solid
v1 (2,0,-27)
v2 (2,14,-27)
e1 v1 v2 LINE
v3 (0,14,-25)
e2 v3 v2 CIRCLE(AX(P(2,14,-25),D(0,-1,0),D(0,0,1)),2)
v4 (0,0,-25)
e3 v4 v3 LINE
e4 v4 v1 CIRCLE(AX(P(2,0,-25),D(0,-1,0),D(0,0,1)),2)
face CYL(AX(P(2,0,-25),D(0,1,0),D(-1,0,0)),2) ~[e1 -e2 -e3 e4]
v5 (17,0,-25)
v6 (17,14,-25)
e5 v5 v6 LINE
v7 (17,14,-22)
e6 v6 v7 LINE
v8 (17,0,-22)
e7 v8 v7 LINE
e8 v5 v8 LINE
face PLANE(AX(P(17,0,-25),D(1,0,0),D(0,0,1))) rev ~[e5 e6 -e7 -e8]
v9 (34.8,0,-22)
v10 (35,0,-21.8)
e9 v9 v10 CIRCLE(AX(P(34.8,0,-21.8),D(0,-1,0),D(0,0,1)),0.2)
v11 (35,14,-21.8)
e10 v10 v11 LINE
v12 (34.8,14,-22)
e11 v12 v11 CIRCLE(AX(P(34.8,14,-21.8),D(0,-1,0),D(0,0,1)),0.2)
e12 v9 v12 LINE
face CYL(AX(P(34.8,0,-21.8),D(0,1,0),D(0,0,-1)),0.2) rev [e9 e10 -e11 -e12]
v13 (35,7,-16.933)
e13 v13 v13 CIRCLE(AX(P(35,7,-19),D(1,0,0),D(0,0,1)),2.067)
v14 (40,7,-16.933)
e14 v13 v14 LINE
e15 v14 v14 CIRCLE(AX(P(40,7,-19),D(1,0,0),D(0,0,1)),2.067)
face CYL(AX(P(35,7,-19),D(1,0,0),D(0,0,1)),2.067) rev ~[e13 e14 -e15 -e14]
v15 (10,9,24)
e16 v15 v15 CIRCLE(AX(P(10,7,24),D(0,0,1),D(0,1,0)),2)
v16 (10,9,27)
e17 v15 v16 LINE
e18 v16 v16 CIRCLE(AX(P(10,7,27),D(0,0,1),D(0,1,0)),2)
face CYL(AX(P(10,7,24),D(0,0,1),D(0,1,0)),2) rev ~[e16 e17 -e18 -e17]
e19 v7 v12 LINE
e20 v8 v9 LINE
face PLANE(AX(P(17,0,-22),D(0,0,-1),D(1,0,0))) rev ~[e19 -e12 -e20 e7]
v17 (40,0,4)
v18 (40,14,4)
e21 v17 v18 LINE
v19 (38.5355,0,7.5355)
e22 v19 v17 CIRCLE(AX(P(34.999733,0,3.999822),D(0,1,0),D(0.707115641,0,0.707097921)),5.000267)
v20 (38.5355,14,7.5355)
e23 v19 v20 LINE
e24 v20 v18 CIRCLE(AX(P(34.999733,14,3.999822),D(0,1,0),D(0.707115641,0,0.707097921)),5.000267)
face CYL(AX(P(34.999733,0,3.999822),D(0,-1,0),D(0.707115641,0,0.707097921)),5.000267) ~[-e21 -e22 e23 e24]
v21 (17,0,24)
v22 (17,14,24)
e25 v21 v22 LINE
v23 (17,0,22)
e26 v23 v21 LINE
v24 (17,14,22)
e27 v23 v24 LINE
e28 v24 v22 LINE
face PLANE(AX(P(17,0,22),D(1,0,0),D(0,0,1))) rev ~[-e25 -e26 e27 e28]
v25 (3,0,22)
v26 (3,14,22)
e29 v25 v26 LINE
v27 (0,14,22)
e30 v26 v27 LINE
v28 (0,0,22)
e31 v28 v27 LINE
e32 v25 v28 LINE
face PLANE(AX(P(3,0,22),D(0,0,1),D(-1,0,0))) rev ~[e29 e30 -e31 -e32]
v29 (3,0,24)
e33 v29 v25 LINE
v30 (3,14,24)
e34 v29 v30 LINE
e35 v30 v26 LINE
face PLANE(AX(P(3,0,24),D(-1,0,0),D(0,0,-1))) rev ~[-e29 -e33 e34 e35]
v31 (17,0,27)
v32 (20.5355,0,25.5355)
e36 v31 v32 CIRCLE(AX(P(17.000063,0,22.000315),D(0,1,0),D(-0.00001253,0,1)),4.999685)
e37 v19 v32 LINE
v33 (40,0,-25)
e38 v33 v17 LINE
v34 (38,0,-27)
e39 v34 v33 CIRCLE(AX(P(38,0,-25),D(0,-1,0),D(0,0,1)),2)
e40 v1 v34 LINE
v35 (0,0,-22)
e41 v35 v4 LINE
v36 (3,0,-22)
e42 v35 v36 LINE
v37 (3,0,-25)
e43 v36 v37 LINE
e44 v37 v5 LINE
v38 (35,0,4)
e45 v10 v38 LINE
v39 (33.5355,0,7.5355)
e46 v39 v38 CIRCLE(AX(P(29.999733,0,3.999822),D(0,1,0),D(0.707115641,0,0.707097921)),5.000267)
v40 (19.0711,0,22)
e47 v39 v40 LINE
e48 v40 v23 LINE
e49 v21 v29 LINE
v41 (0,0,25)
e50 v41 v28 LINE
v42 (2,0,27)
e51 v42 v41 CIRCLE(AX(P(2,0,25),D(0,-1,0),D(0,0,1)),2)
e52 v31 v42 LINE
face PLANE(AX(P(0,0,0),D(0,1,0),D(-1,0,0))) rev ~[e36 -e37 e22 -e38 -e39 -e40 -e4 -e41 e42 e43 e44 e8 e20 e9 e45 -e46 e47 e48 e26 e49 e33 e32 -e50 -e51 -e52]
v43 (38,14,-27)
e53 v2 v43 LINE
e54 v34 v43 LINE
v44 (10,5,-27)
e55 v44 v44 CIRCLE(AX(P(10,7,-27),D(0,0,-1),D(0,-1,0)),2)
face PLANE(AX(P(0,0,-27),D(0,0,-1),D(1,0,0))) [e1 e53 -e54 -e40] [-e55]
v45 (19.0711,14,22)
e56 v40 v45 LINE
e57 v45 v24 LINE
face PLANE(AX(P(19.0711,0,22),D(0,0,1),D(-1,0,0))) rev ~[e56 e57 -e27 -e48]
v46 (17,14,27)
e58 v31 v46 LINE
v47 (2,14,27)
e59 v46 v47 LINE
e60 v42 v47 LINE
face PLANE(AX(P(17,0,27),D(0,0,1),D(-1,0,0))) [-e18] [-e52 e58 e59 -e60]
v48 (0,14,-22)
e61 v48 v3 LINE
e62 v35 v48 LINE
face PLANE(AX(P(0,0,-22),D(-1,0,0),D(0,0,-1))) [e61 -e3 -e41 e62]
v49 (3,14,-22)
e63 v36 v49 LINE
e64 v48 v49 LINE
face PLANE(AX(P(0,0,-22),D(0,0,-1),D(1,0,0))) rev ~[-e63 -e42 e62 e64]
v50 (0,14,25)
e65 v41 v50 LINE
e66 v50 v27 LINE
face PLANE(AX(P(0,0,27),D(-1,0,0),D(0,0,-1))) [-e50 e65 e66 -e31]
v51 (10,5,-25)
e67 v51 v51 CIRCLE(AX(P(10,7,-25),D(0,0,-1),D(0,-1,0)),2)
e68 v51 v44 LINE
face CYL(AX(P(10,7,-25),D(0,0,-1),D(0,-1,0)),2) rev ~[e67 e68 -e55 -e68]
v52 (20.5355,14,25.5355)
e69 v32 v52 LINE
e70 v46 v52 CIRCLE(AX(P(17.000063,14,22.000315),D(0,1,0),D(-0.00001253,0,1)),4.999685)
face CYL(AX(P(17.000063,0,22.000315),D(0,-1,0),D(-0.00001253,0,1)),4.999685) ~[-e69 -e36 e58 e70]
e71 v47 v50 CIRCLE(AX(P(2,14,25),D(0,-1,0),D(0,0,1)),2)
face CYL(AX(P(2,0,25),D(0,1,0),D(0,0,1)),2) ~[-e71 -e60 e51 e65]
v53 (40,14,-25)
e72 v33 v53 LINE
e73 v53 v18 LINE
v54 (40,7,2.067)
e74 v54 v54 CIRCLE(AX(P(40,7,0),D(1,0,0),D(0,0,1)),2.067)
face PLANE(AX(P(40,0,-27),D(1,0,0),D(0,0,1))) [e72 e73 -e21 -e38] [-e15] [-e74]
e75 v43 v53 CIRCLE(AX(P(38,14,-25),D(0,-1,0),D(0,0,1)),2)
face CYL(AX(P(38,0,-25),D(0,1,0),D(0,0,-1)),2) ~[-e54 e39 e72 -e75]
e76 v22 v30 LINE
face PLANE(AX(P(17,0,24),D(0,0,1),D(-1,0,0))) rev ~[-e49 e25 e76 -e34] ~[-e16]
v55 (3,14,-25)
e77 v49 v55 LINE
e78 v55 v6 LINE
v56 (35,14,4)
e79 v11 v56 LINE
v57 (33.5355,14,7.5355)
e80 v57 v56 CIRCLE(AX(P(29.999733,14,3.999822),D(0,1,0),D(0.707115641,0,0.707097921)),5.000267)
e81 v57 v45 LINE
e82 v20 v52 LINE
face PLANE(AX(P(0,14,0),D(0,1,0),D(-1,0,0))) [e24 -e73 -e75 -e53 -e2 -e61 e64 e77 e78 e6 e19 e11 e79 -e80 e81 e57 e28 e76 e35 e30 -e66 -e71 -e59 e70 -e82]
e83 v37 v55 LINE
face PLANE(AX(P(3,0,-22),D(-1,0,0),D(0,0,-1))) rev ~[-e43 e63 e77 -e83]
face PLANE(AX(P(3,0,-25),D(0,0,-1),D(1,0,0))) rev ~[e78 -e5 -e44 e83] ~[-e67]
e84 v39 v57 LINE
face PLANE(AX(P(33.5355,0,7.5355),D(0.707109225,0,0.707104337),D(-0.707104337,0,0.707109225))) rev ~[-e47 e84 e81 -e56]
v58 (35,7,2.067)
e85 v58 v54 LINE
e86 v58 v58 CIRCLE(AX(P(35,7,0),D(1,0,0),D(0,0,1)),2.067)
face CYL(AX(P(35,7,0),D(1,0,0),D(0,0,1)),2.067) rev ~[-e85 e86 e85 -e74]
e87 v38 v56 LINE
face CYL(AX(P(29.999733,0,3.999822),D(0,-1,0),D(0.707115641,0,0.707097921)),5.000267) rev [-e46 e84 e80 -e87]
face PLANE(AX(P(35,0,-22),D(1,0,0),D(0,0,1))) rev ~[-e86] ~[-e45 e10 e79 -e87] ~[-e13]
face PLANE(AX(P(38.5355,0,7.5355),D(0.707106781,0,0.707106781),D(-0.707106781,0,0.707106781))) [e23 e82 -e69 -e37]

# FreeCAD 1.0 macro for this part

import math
import FreeCAD as App
import Part
import Sketcher

V = App.Vector
Q = App.Units.Quantity


def edges_at(feature, points):
    """Names of the edges that pass closest to the given points."""
    edges = feature.Shape.Edges
    near = lambda p: min(range(len(edges)), key=lambda i: edges[i].distToShape(Part.Vertex(*p))[0])
    return sorted({f"Edge{near(p) + 1}" for p in points})

doc = App.newDocument("Part")
body = doc.addObject("PartDesign::Body", "Body")

sketch1 = body.newObject("Sketcher::SketchObject", "Sketch")
sketch1.AttachmentSupport = (doc.getObject("XZ_Plane"), [""])
sketch1.MapMode = "FlatFace"
sketch1.addGeometry(Part.LineSegment(V(0, -27, 0), V(0, -22, 0)), False)
sketch1.addGeometry(Part.LineSegment(V(0, -22, 0), V(3, -22, 0)), False)
sketch1.addGeometry(Part.LineSegment(V(3, -22, 0), V(3, -25, 0)), False)
sketch1.addGeometry(Part.LineSegment(V(3, -25, 0), V(17, -25, 0)), False)
sketch1.addGeometry(Part.LineSegment(V(17, -25, 0), V(17, -22, 0)), False)
sketch1.addGeometry(Part.LineSegment(V(17, -22, 0), V(35, -22, 0)), False)
sketch1.addGeometry(Part.LineSegment(V(35, -22, 0), V(35, 4, 0)), False)
sketch1.addGeometry(Part.ArcOfCircle(Part.Circle(V(30, 4, 0), V(0, 0, 1), 5), math.radians(0), math.radians(45)), False)
sketch1.addGeometry(Part.LineSegment(V(33.5, 7.5, 0), V(19.1, 22, 0)), False)
sketch1.addGeometry(Part.LineSegment(V(19.1, 22, 0), V(17, 22, 0)), False)
sketch1.addGeometry(Part.LineSegment(V(17, 22, 0), V(17, 24, 0)), False)
sketch1.addGeometry(Part.LineSegment(V(17, 24, 0), V(3, 24, 0)), False)
sketch1.addGeometry(Part.LineSegment(V(3, 24, 0), V(3, 22, 0)), False)
sketch1.addGeometry(Part.LineSegment(V(3, 22, 0), V(0, 22, 0)), False)
sketch1.addGeometry(Part.LineSegment(V(0, 22, 0), V(0, 27, 0)), False)
sketch1.addGeometry(Part.LineSegment(V(0, 27, 0), V(17, 27, 0)), False)
sketch1.addGeometry(Part.ArcOfCircle(Part.Circle(V(17, 22, 0), V(0, 0, 1), 5), math.radians(45), math.radians(90)), False)
sketch1.addGeometry(Part.LineSegment(V(20.5, 25.5, 0), V(38.5, 7.5, 0)), False)
sketch1.addGeometry(Part.ArcOfCircle(Part.Circle(V(35, 4, 0), V(0, 0, 1), 5), math.radians(0), math.radians(45)), False)
sketch1.addGeometry(Part.LineSegment(V(40, 4, 0), V(40, -27, 0)), False)
sketch1.addGeometry(Part.LineSegment(V(40, -27, 0), V(0, -27, 0)), False)
sketch1.addConstraint(Sketcher.Constraint("Coincident", 0, 2, 1, 1))
sketch1.addConstraint(Sketcher.Constraint("Coincident", 1, 2, 2, 1))
sketch1.addConstraint(Sketcher.Constraint("Coincident", 2, 2, 3, 1))
sketch1.addConstraint(Sketcher.Constraint("Coincident", 3, 2, 4, 1))
sketch1.addConstraint(Sketcher.Constraint("Coincident", 4, 2, 5, 1))
sketch1.addConstraint(Sketcher.Constraint("Coincident", 5, 2, 6, 1))
sketch1.addConstraint(Sketcher.Constraint("Tangent", 6, 2, 7, 1))
sketch1.addConstraint(Sketcher.Constraint("Tangent", 7, 2, 8, 1))
sketch1.addConstraint(Sketcher.Constraint("Coincident", 8, 2, 9, 1))
sketch1.addConstraint(Sketcher.Constraint("Coincident", 9, 2, 10, 1))
sketch1.addConstraint(Sketcher.Constraint("Coincident", 10, 2, 11, 1))
sketch1.addConstraint(Sketcher.Constraint("Coincident", 11, 2, 12, 1))
sketch1.addConstraint(Sketcher.Constraint("Coincident", 12, 2, 13, 1))
sketch1.addConstraint(Sketcher.Constraint("Coincident", 13, 2, 14, 1))
sketch1.addConstraint(Sketcher.Constraint("Coincident", 14, 2, 15, 1))
sketch1.addConstraint(Sketcher.Constraint("Tangent", 15, 2, 16, 2))
sketch1.addConstraint(Sketcher.Constraint("Tangent", 16, 1, 17, 1))
sketch1.addConstraint(Sketcher.Constraint("Tangent", 17, 2, 18, 2))
sketch1.addConstraint(Sketcher.Constraint("Tangent", 18, 1, 19, 1))
sketch1.addConstraint(Sketcher.Constraint("Coincident", 19, 2, 20, 1))
sketch1.addConstraint(Sketcher.Constraint("Coincident", 20, 2, 0, 1))
sketch1.addConstraint(Sketcher.Constraint("Vertical", 0))
sketch1.addConstraint(Sketcher.Constraint("Horizontal", 1))
sketch1.addConstraint(Sketcher.Constraint("Vertical", 2))
sketch1.addConstraint(Sketcher.Constraint("Horizontal", 3))
sketch1.addConstraint(Sketcher.Constraint("Vertical", 4))
sketch1.addConstraint(Sketcher.Constraint("Horizontal", 5))
sketch1.addConstraint(Sketcher.Constraint("Vertical", 6))
sketch1.addConstraint(Sketcher.Constraint("Horizontal", 9))
sketch1.addConstraint(Sketcher.Constraint("Vertical", 10))
sketch1.addConstraint(Sketcher.Constraint("Horizontal", 11))
sketch1.addConstraint(Sketcher.Constraint("Vertical", 12))
sketch1.addConstraint(Sketcher.Constraint("Horizontal", 13))
sketch1.addConstraint(Sketcher.Constraint("Vertical", 14))
sketch1.addConstraint(Sketcher.Constraint("Horizontal", 15))
sketch1.addConstraint(Sketcher.Constraint("Vertical", 19))
sketch1.addConstraint(Sketcher.Constraint("Horizontal", 20))
sketch1.addConstraint(Sketcher.Constraint("Coincident", 6, 2, 18, 3))
sketch1.addConstraint(Sketcher.Constraint("Coincident", 9, 2, 16, 3))
sketch1.addConstraint(Sketcher.Constraint("Equal", 7, 16))
sketch1.addConstraint(Sketcher.Constraint("Equal", 16, 18))
sketch1.addConstraint(Sketcher.Constraint("Symmetric", 0, 2, 13, 2, -1, 1))
sketch1.addConstraint(Sketcher.Constraint("Symmetric", 4, 2, 9, 2, -1))
sketch1.addConstraint(Sketcher.Constraint("Symmetric", 14, 2, 20, 2, -1))
sketch1.addConstraint(Sketcher.Constraint("Parallel", 8, 17))
sketch1.addConstraint(Sketcher.Constraint("Horizontal", 1, 2, 4, 2))
sketch1.addConstraint(Sketcher.Constraint("Vertical", 2, 2, 11, 2))
sketch1.addConstraint(Sketcher.Constraint("Equal", 13, 2))
sketch1.addConstraint(Sketcher.Constraint("Radius", 7, Q("5 mm")))
sketch1.addConstraint(Sketcher.Constraint("DistanceX", 1, 1, 1, 2, Q("3 mm")))
sketch1.addConstraint(Sketcher.Constraint("DistanceX", 3, 1, 3, 2, Q("14 mm")))
sketch1.addConstraint(Sketcher.Constraint("DistanceX", 20, 2, 20, 1, Q("40 mm")))
sketch1.addConstraint(Sketcher.Constraint("DistanceY", 6, 1, 6, 2, Q("26 mm")))
sketch1.addConstraint(Sketcher.Constraint("DistanceY", 10, 1, 10, 2, Q("2 mm")))
sketch1.addConstraint(Sketcher.Constraint("Angle", 17, Q("-45 deg")))
pad1 = body.newObject("PartDesign::Pad", "Pad")
pad1.Profile = sketch1
pad1.Length = 14
pad1.Reversed = True
doc.recompute()

fillet = body.newObject("PartDesign::Fillet", "Fillet")
fillet.Base = (pad1, edges_at(pad1, [(0, 7, -27), (40, 7, -27), (0, 7, 27)]))
fillet.Radius = 2
doc.recompute()

fillet2 = body.newObject("PartDesign::Fillet", "Fillet001")
fillet2.Base = (fillet, edges_at(fillet, [(35, 7, -22)]))
fillet2.Radius = 0.2

sketch2 = body.newObject("Sketcher::SketchObject", "Sketch001")
sketch2.AttachmentSupport = (doc.getObject("YZ_Plane"), [""])
sketch2.MapMode = "FlatFace"
sketch2.AttachmentOffset = App.Placement(V(0, 0, 35), App.Rotation())
sketch2.addGeometry(Part.Circle(V(7, -19, 0), V(0, 0, 1), 2.1), False)
sketch2.addGeometry(Part.Circle(V(7, 0, 0), V(0, 0, 1), 2.1), False)
sketch2.addConstraint(Sketcher.Constraint("Equal", 0, 1))
sketch2.addConstraint(Sketcher.Constraint("PointOnObject", 1, 3, -1))
sketch2.addConstraint(Sketcher.Constraint("Vertical", 0, 3, 1, 3))
sketch2.addConstraint(Sketcher.Constraint("Diameter", 0, Q("4.134 mm")))
sketch2.addConstraint(Sketcher.Constraint("DistanceX", -1, 1, 0, 3, Q("7 mm")))
sketch2.addConstraint(Sketcher.Constraint("DistanceY", 0, 3, -1, 1, Q("19 mm")))
doc.recompute()
hole = body.newObject("PartDesign::Hole", "Hole")
hole.Profile = sketch2
hole.ThreadType = "None"
hole.Diameter = 4.134
hole.DepthType = "Dimension"
hole.Depth = 5
hole.DrillPoint = "Flat"
hole.Reversed = True

sketch3 = body.newObject("Sketcher::SketchObject", "Sketch002")
sketch3.AttachmentSupport = (doc.getObject("XY_Plane"), [""])
sketch3.MapMode = "FlatFace"
sketch3.AttachmentOffset = App.Placement(V(0, 0, -25), App.Rotation())
sketch3.addGeometry(Part.Circle(V(10, 7, 0), V(0, 0, 1), 2), False)
sketch3.addConstraint(Sketcher.Constraint("Diameter", 0, Q("4 mm")))
sketch3.addConstraint(Sketcher.Constraint("DistanceX", -1, 1, 0, 3, Q("10 mm")))
sketch3.addConstraint(Sketcher.Constraint("DistanceY", -1, 1, 0, 3, Q("7 mm")))
doc.recompute()
hole2 = body.newObject("PartDesign::Hole", "Hole001")
hole2.Profile = sketch3
hole2.ThreadType = "None"
hole2.Diameter = 4
hole2.DepthType = "ThroughAll"

sketch4 = body.newObject("Sketcher::SketchObject", "Sketch003")
sketch4.AttachmentSupport = (doc.getObject("XY_Plane"), [""])
sketch4.MapMode = "FlatFace"
sketch4.AttachmentOffset = App.Placement(V(0, 0, 24), App.Rotation())
sketch4.addGeometry(Part.Circle(V(10, 7, 0), V(0, 0, 1), 2), False)
sketch4.addConstraint(Sketcher.Constraint("Diameter", 0, Q("4 mm")))
sketch4.addConstraint(Sketcher.Constraint("DistanceX", -1, 1, 0, 3, Q("10 mm")))
sketch4.addConstraint(Sketcher.Constraint("DistanceY", -1, 1, 0, 3, Q("7 mm")))
doc.recompute()
hole3 = body.newObject("PartDesign::Hole", "Hole002")
hole3.Profile = sketch4
hole3.ThreadType = "None"
hole3.Diameter = 4
hole3.DepthType = "ThroughAll"
hole3.Reversed = True

doc.recompute()
